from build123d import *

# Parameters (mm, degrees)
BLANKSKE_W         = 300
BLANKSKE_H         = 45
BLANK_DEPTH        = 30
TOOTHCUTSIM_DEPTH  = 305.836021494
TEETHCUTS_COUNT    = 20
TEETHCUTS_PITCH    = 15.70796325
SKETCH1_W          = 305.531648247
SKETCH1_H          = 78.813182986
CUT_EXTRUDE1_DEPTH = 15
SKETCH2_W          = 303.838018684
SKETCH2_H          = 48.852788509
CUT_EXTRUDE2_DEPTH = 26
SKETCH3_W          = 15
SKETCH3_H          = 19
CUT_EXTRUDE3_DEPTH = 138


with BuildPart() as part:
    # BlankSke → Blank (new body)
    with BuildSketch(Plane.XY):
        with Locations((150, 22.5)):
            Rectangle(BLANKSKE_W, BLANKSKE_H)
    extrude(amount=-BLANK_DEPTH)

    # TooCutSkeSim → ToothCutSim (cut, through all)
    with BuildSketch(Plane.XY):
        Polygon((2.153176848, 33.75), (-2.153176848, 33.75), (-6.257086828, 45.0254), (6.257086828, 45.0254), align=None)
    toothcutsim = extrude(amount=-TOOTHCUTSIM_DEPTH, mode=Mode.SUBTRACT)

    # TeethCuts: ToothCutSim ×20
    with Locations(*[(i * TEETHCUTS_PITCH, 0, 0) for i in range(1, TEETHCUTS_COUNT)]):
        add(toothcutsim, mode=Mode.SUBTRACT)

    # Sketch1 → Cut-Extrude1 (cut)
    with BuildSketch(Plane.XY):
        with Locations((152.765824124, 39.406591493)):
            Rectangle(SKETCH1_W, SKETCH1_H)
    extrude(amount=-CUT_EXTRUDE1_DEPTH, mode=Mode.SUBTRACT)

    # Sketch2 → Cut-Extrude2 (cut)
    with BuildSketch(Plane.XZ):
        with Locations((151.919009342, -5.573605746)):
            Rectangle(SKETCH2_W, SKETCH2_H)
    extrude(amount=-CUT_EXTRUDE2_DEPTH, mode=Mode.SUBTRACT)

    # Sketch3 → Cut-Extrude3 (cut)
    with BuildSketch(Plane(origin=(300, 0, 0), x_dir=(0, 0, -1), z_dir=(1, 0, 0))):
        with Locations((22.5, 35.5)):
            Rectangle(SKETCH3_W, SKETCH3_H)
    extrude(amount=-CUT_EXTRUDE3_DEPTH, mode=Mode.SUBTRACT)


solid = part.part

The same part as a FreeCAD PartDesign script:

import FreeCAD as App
import Part
import Sketcher
Q = App.Units.Quantity


def add_polygon(sketch, points):
    """Adds a closed chain of lines whose ends are joined by coincident constraints."""
    first, n = sketch.GeometryCount, len(points)
    for a, b in zip(points, points[1:] + points[:1]):
        sketch.addGeometry(Part.LineSegment(App.Vector(*a, 0), App.Vector(*b, 0)), False)
    for i in range(n):
        sketch.addConstraint(Sketcher.Constraint("Coincident", first + i, 2, first + (i + 1) % n, 1))

doc = App.newDocument("Part")
body = doc.addObject("PartDesign::Body", "Body")

sketch1 = doc.addObject("Sketcher::SketchObject", "Sketch")
body.addObject(sketch1)
sketch1.AttachmentSupport = (doc.XY_Plane, [""])
sketch1.MapMode = "FlatFace"
add_polygon(sketch1, [(0, 45), (0, 0), (300, 0), (300, 45)])
sketch1.addConstraint(Sketcher.Constraint("Vertical", 0))
sketch1.addConstraint(Sketcher.Constraint("Horizontal", 1))
sketch1.addConstraint(Sketcher.Constraint("Vertical", 2))
sketch1.addConstraint(Sketcher.Constraint("Horizontal", 3))
sketch1.addConstraint(Sketcher.Constraint("Coincident", 0, 2, -1, 1))
sketch1.addConstraint(Sketcher.Constraint("DistanceX", 1, 1, 1, 2, 300.0))
sketch1.addConstraint(Sketcher.Constraint("DistanceY", 0, 2, 0, 1, 45.0))
pad1 = doc.addObject("PartDesign::Pad", "Pad")
body.addObject(pad1)
pad1.Profile = sketch1
pad1.Length = 30
pad1.Reversed = True

sketch2 = doc.addObject("Sketcher::SketchObject", "Sketch001")
body.addObject(sketch2)
sketch2.AttachmentSupport = (doc.XY_Plane, [""])
sketch2.MapMode = "FlatFace"
add_polygon(sketch2, [(-2.2, 33.8), (2.2, 33.8), (6.3, 45), (-6.3, 45)])
sketch2.addConstraint(Sketcher.Constraint("Horizontal", 0))
sketch2.addConstraint(Sketcher.Constraint("Horizontal", 2))
sketch2.addConstraint(Sketcher.Constraint("Equal", 1, 3))
sketch2.addConstraint(Sketcher.Constraint("Angle", 1, Q("70 deg")))
sketch2.addConstraint(Sketcher.Constraint("DistanceY", -1, 1, 0, 2, 33.75))
sketch2.addConstraint(Sketcher.Constraint("DistanceY", -1, 1, 1, 2, 45.0254))
sketch2.addConstraint(Sketcher.Constraint("DistanceX", 0, 1, 0, 2, 4.306354))
sketch2.addConstraint(Sketcher.Constraint("DistanceX", -1, 1, 0, 2, 2.153177))
pocket1 = doc.addObject("PartDesign::Pocket", "Pocket")
body.addObject(pocket1)
pocket1.Profile = sketch2
pocket1.Type = "ThroughAll"
doc.recompute()

linearpattern = doc.addObject("PartDesign::LinearPattern", "LinearPattern")
body.addObject(linearpattern)
linearpattern.Originals = [pocket1]
linearpattern.Direction = (doc.X_Axis, [""])
linearpattern.Mode = "offset"
linearpattern.Offset = 15.707963
linearpattern.Occurrences = 20
body.Tip = linearpattern

sketch3 = doc.addObject("Sketcher::SketchObject", "Sketch002")
body.addObject(sketch3)
sketch3.AttachmentSupport = (doc.XY_Plane, [""])
sketch3.MapMode = "FlatFace"
add_polygon(sketch3, [(0, 79), (0, 0), (306, 0), (306, 79)])
sketch3.addConstraint(Sketcher.Constraint("Vertical", 0))
sketch3.addConstraint(Sketcher.Constraint("Horizontal", 1))
sketch3.addConstraint(Sketcher.Constraint("Vertical", 2))
sketch3.addConstraint(Sketcher.Constraint("Horizontal", 3))
sketch3.addConstraint(Sketcher.Constraint("Coincident", 0, 2, -1, 1))
sketch3.addConstraint(Sketcher.Constraint("DistanceX", 1, 1, 1, 2, 305.531648))
sketch3.addConstraint(Sketcher.Constraint("DistanceY", 0, 2, 0, 1, 78.813183))
pocket2 = doc.addObject("PartDesign::Pocket", "Pocket001")
body.addObject(pocket2)
pocket2.Profile = sketch3
pocket2.Length = 15

sketch4 = doc.addObject("Sketcher::SketchObject", "Sketch003")
body.addObject(sketch4)
sketch4.AttachmentSupport = (doc.XZ_Plane, [""])
sketch4.MapMode = "FlatFace"
add_polygon(sketch4, [(0, 19), (0, -30), (304, -30), (304, 19)])
sketch4.addConstraint(Sketcher.Constraint("Vertical", 0))
sketch4.addConstraint(Sketcher.Constraint("Horizontal", 1))
sketch4.addConstraint(Sketcher.Constraint("Vertical", 2))
sketch4.addConstraint(Sketcher.Constraint("Horizontal", 3))
sketch4.addConstraint(Sketcher.Constraint("PointOnObject", 0, 2, -2))
sketch4.addConstraint(Sketcher.Constraint("DistanceY", 0, 2, -1, 1, 30.0))
sketch4.addConstraint(Sketcher.Constraint("DistanceX", 1, 1, 1, 2, 303.838019))
sketch4.addConstraint(Sketcher.Constraint("DistanceY", 0, 2, 0, 1, 48.852789))
pocket3 = doc.addObject("PartDesign::Pocket", "Pocket002")
body.addObject(pocket3)
pocket3.Profile = sketch4
pocket3.Length = 26

sketch5 = doc.addObject("Sketcher::SketchObject", "Sketch004")
body.addObject(sketch5)
sketch5.AttachmentSupport = (doc.YZ_Plane, [""])
sketch5.MapMode = "FlatFace"
sketch5.AttachmentOffset = App.Placement(App.Vector(0, 0, 300), App.Rotation())
add_polygon(sketch5, [(45, -15), (26, -15), (26, -30), (45, -30)])
sketch5.addConstraint(Sketcher.Constraint("Horizontal", 0))
sketch5.addConstraint(Sketcher.Constraint("Vertical", 1))
sketch5.addConstraint(Sketcher.Constraint("Horizontal", 2))
sketch5.addConstraint(Sketcher.Constraint("Vertical", 3))
sketch5.addConstraint(Sketcher.Constraint("DistanceX", 0, 2, 0, 1, 19.0))
sketch5.addConstraint(Sketcher.Constraint("DistanceY", 1, 2, 1, 1, 15.0))
sketch5.addConstraint(Sketcher.Constraint("DistanceX", -1, 1, 0, 2, 26.0))
sketch5.addConstraint(Sketcher.Constraint("DistanceY", 0, 2, -1, 1, 15.0))
pocket4 = doc.addObject("PartDesign::Pocket", "Pocket003")
body.addObject(pocket4)
pocket4.Profile = sketch5
pocket4.Length = 138

doc.recompute()
